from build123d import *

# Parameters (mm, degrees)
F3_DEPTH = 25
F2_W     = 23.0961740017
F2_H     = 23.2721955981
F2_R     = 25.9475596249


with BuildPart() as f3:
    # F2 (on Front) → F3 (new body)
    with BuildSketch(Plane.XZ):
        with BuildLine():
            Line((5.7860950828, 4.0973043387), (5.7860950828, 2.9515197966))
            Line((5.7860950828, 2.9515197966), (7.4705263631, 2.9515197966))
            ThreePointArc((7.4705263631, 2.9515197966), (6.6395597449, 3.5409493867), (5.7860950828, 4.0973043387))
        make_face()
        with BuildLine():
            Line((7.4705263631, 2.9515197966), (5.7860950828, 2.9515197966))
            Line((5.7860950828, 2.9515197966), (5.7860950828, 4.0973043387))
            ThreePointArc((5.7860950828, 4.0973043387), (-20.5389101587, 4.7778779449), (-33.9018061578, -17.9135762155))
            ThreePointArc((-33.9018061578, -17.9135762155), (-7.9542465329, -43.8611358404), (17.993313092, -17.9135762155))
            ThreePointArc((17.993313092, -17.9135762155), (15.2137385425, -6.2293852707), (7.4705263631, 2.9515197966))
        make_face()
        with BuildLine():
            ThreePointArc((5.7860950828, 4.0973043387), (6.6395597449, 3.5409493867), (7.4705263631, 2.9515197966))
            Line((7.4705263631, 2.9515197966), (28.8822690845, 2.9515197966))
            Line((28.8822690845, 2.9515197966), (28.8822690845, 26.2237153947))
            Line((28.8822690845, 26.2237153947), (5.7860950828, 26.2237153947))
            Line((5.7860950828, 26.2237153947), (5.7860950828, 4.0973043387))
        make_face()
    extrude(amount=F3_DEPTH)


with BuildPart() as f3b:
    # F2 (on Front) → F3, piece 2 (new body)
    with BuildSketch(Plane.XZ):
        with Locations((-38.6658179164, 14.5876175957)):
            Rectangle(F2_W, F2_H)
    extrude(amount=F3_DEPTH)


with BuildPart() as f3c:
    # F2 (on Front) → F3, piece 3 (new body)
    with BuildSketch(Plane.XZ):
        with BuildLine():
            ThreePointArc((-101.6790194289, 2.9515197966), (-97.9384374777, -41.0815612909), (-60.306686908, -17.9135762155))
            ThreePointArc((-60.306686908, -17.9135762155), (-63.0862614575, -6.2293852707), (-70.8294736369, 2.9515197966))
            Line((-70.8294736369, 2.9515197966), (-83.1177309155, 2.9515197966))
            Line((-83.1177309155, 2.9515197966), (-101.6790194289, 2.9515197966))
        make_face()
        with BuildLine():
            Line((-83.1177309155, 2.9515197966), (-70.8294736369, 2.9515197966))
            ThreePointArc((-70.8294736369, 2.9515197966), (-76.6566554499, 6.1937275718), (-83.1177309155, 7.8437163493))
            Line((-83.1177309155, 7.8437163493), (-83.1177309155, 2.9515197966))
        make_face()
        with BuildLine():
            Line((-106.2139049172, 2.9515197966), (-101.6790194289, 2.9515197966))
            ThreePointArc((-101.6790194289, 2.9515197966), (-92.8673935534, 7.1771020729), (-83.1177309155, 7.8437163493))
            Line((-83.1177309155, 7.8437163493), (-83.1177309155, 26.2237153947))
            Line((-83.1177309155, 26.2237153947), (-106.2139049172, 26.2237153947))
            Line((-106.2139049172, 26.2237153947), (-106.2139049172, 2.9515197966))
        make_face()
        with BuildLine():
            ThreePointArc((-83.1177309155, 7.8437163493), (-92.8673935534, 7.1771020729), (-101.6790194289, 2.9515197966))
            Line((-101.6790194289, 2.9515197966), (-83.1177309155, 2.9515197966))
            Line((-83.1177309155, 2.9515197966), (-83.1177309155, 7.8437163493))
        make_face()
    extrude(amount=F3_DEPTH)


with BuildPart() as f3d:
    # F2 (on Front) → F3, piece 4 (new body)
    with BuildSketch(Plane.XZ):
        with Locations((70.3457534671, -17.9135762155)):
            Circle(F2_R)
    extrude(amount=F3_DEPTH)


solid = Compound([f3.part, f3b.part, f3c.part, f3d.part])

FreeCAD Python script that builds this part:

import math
import FreeCAD as App
import Part
import Sketcher
from FreeCAD import Vector

doc = App.newDocument("Part")
body = doc.addObject("PartDesign::Body", "Body")

sketch1 = body.newObject("Sketcher::SketchObject", "Sketch")
sketch1.AttachmentSupport = (doc.getObject("XZ_Plane"), [""])
sketch1.MapMode = "FlatFace"
sketch1.addGeometry([
    Part.ArcOfCircle(Part.Circle(Vector(-8, -18, 0), Vector(0, 0, 1), 26), math.radians(58), math.radians(360)),
    Part.ArcOfCircle(Part.Circle(Vector(-8, -18, 0), Vector(0, 0, 1), 26), math.radians(0), math.radians(54)),
    Part.LineSegment(Vector(7, 3, 0), Vector(29, 3, 0)),
    Part.LineSegment(Vector(29, 3, 0), Vector(29, 26, 0)),
    Part.LineSegment(Vector(29, 26, 0), Vector(6, 26, 0)),
    Part.LineSegment(Vector(6, 26, 0), Vector(6, 4, 0)),
], False)
sketch1.addConstraint([
    Sketcher.Constraint("Tangent", 0, 2, 1, 1),
    Sketcher.Constraint("Coincident", 1, 2, 2, 1),
    Sketcher.Constraint("Coincident", 2, 2, 3, 1),
    Sketcher.Constraint("Coincident", 3, 2, 4, 1),
    Sketcher.Constraint("Coincident", 4, 2, 5, 1),
    Sketcher.Constraint("Coincident", 5, 2, 0, 1),
    Sketcher.Constraint("Horizontal", 2),
    Sketcher.Constraint("Vertical", 3),
    Sketcher.Constraint("Horizontal", 4),
    Sketcher.Constraint("Vertical", 5),
    Sketcher.Constraint("Equal", 0, 1),
    Sketcher.Constraint("Horizontal", 1, 3, 0, 2),
    Sketcher.Constraint("Radius", 0, 25.94756),
    Sketcher.Constraint("DistanceY", 5, 2, 5, 1, 22.126411),
    Sketcher.Constraint("DistanceX", 2, 1, 2, 2, 21.411743),
    Sketcher.Constraint("DistanceX", 4, 2, 4, 1, 23.096174),
    Sketcher.Constraint("DistanceY", 3, 1, 3, 2, 23.272196),
    Sketcher.Constraint("DistanceY", -1, 1, 1, 2, 2.95152),
    Sketcher.Constraint("DistanceX", -1, 1, 2, 2, 28.882269),
])
pad1 = body.newObject("PartDesign::Pad", "Pad")
pad1.Profile = sketch1
pad1.Length = 25
body2 = doc.addObject("PartDesign::Body", "Body001")

sketch2 = body2.newObject("Sketcher::SketchObject", "Sketch001")
sketch2.AttachmentSupport = (doc.getObject("XZ_Plane001"), [""])
sketch2.MapMode = "FlatFace"
sketch2.addGeometry([
    Part.LineSegment(Vector(-50, 26, 0), Vector(-50, 3, 0)),
    Part.LineSegment(Vector(-50, 3, 0), Vector(-27, 3, 0)),
    Part.LineSegment(Vector(-27, 3, 0), Vector(-27, 26, 0)),
    Part.LineSegment(Vector(-27, 26, 0), Vector(-50, 26, 0)),
], False)
sketch2.addConstraint([
    Sketcher.Constraint("Coincident", 0, 2, 1, 1),
    Sketcher.Constraint("Coincident", 1, 2, 2, 1),
    Sketcher.Constraint("Coincident", 2, 2, 3, 1),
    Sketcher.Constraint("Coincident", 3, 2, 0, 1),
    Sketcher.Constraint("Vertical", 0),
    Sketcher.Constraint("Horizontal", 1),
    Sketcher.Constraint("Vertical", 2),
    Sketcher.Constraint("Horizontal", 3),
    Sketcher.Constraint("DistanceX", 1, 1, 1, 2, 23.096174),
    Sketcher.Constraint("DistanceY", 0, 2, 0, 1, 23.272196),
    Sketcher.Constraint("DistanceY", -1, 1, 0, 2, 2.95152),
    Sketcher.Constraint("DistanceX", 1, 2, -1, 1, 27.117731),
])
pad2 = body2.newObject("PartDesign::Pad", "Pad001")
pad2.Profile = sketch2
pad2.Length = 25
body3 = doc.addObject("PartDesign::Body", "Body002")

sketch3 = body3.newObject("Sketcher::SketchObject", "Sketch002")
sketch3.AttachmentSupport = (doc.getObject("XZ_Plane002"), [""])
sketch3.MapMode = "FlatFace"
sketch3.addGeometry([
    Part.ArcOfCircle(Part.Circle(Vector(-86.3, -17.9, 0), Vector(0, 0, 1), 25.9), math.radians(126), math.radians(360)),
    Part.ArcOfCircle(Part.Circle(Vector(-86.3, -17.9, 0), Vector(0, 0, 1), 25.9), math.radians(0), math.radians(54)),
    Part.ArcOfCircle(Part.Circle(Vector(-86.3, -17.9, 0), Vector(0, 0, 1), 25.9), math.radians(54), math.radians(83)),
    Part.LineSegment(Vector(-83.1, 7.8, 0), Vector(-83.1, 26.2, 0)),
    Part.LineSegment(Vector(-83.1, 26.2, 0), Vector(-106.2, 26.2, 0)),
    Part.LineSegment(Vector(-106.2, 26.2, 0), Vector(-106.2, 3, 0)),
    Part.LineSegment(Vector(-106.2, 3, 0), Vector(-101.7, 3, 0)),
], False)
sketch3.addConstraint([
    Sketcher.Constraint("Tangent", 0, 2, 1, 1),
    Sketcher.Constraint("Tangent", 1, 2, 2, 1),
    Sketcher.Constraint("Coincident", 2, 2, 3, 1),
    Sketcher.Constraint("Coincident", 3, 2, 4, 1),
    Sketcher.Constraint("Coincident", 4, 2, 5, 1),
    Sketcher.Constraint("Coincident", 5, 2, 6, 1),
    Sketcher.Constraint("Coincident", 6, 2, 0, 1),
    Sketcher.Constraint("Vertical", 3),
    Sketcher.Constraint("Horizontal", 4),
    Sketcher.Constraint("Vertical", 5),
    Sketcher.Constraint("Horizontal", 6),
    Sketcher.Constraint("Coincident", 2, 3, 0, 3),
    Sketcher.Constraint("Horizontal", 2, 3, 0, 2),
    Sketcher.Constraint("Horizontal", 1, 2, 5, 2),
    Sketcher.Constraint("DistanceY", 3, 1, 3, 2, 18.379999),
    Sketcher.Constraint("Radius", 0, 25.94756),
    Sketcher.Constraint("DistanceX", 4, 2, 4, 1, 23.096174),
    Sketcher.Constraint("DistanceX", 6, 1, 6, 2, 4.534885),
    Sketcher.Constraint("DistanceY", 5, 2, 5, 1, 23.272196),
    Sketcher.Constraint("DistanceY", -1, 1, 1, 2, 2.95152),
    Sketcher.Constraint("DistanceX", 2, 2, -1, 1, 83.117731),
])
pad3 = body3.newObject("PartDesign::Pad", "Pad002")
pad3.Profile = sketch3
pad3.Length = 25
body4 = doc.addObject("PartDesign::Body", "Body003")

sketch4 = body4.newObject("Sketcher::SketchObject", "Sketch003")
sketch4.AttachmentSupport = (doc.getObject("XZ_Plane003"), [""])
sketch4.MapMode = "FlatFace"
sketch4.addGeometry(Part.Circle(Vector(70, -18, 0), Vector(0, 0, 1), 26), False)
sketch4.addConstraint([
    Sketcher.Constraint("Diameter", 0, 51.895119),
    Sketcher.Constraint("DistanceX", -1, 1, 0, 3, 70.345753),
    Sketcher.Constraint("DistanceY", 0, 3, -1, 1, 17.913576),
])
pad4 = body4.newObject("PartDesign::Pad", "Pad003")
pad4.Profile = sketch4
pad4.Length = 25

doc.recompute()
